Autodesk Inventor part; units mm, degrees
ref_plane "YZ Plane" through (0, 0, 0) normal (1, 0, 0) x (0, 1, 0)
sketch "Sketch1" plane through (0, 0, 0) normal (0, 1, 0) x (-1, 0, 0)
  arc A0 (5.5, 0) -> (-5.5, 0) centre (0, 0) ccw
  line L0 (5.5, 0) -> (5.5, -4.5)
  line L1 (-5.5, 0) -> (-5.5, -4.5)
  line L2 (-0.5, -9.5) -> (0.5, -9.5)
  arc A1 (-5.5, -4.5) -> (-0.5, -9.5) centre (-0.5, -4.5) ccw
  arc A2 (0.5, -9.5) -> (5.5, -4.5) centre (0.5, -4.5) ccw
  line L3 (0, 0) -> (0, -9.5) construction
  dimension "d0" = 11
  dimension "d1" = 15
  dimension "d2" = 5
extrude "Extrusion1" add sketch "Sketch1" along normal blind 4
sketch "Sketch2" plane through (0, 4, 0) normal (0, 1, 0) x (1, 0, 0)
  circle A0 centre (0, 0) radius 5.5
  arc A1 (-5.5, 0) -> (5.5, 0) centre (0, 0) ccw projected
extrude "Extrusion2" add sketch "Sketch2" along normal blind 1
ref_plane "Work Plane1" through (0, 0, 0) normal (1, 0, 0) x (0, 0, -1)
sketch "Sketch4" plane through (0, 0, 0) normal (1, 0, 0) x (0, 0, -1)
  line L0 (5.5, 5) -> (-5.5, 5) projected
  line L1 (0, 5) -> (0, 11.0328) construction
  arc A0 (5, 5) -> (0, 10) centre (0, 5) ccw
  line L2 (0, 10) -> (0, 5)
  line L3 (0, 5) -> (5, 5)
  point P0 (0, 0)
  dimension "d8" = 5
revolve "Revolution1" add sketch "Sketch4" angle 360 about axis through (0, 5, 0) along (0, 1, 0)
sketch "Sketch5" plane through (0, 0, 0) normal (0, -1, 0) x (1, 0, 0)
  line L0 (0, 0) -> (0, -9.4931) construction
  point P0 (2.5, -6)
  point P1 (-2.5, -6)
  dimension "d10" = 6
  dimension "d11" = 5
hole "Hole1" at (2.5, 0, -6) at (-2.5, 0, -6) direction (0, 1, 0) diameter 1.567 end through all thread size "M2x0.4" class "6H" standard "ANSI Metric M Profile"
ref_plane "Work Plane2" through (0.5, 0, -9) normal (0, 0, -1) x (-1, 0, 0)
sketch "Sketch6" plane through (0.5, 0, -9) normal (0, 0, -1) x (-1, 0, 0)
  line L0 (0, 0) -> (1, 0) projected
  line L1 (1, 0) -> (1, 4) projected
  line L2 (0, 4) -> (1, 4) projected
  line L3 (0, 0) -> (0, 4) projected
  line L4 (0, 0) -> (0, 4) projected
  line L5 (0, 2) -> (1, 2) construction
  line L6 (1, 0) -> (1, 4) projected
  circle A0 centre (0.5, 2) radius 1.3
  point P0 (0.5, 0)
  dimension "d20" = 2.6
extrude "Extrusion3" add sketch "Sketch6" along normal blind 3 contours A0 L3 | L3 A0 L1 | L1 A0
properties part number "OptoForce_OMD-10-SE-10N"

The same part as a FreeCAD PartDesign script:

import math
import FreeCAD as App
import Part
import Sketcher

doc = App.newDocument("Part")
params = doc.addObject("Spreadsheet::Sheet", "Params")
for row, (alias, value) in enumerate([
    ("sketch1_radius", "5 mm"),
    ("sketch1_radius2", "5.5 mm"),
    ("sketch1_height", "4.5 mm"),
    ("pad1_length", "4 mm"),
    ("sketch2_diameter", "11 mm"),
    ("pad2_length", "1 mm"),
    ("sketch3_radius", "5 mm"),
    ("revolution_angle", "360 deg"),
    ("hole_diameter", "1.567 mm"),
    ("sketch5_diameter", "2.6 mm"),
    ("pad3_length", "3 mm"),
], start=1):
    params.set(f"A{row}", alias)
    params.set(f"B{row}", "=" + value)
    params.setAlias(f"B{row}", alias)

body = doc.addObject("PartDesign::Body", "Body")

sketch1 = body.newObject("Sketcher::SketchObject", "Sketch")
sketch1.AttachmentSupport = (doc.getObject("XZ_Plane"), [""])
sketch1.MapMode = "FlatFace"
sketch1.addGeometry([
    Part.LineSegment(App.Vector(-5.5, -4.5, 0), App.Vector(-5.5, 0, 0)),
    Part.ArcOfCircle(Part.Circle(App.Vector(0, 0, 0), App.Vector(0, 0, 1), 5.5), math.radians(0), math.radians(180)),
    Part.LineSegment(App.Vector(5.5, 0, 0), App.Vector(5.5, -4.5, 0)),
    Part.ArcOfCircle(Part.Circle(App.Vector(0.5, -4.5, 0), App.Vector(0, 0, 1), 5), math.radians(-90), math.radians(0)),
    Part.LineSegment(App.Vector(0.5, -9.5, 0), App.Vector(-0.5, -9.5, 0)),
    Part.ArcOfCircle(Part.Circle(App.Vector(-0.5, -4.5, 0), App.Vector(0, 0, 1), 5), math.radians(180), math.radians(270)),
], False)
sketch1.addConstraint([
    Sketcher.Constraint("Tangent", 0, 2, 1, 2),
    Sketcher.Constraint("Tangent", 1, 1, 2, 1),
    Sketcher.Constraint("Tangent", 2, 2, 3, 2),
    Sketcher.Constraint("Tangent", 3, 1, 4, 1),
    Sketcher.Constraint("Tangent", 4, 2, 5, 2),
    Sketcher.Constraint("Tangent", 5, 1, 0, 1),
    Sketcher.Constraint("Vertical", 0),
    Sketcher.Constraint("Vertical", 2),
    Sketcher.Constraint("Horizontal", 4),
    Sketcher.Constraint("Coincident", 1, 3, -1, 1),
    Sketcher.Constraint("Equal", 3, 5),
    Sketcher.Constraint("Radius", 3, 5.0),
    Sketcher.Constraint("Radius", 1, 5.5),
    Sketcher.Constraint("DistanceY", 0, 1, 0, 2, 4.5),
])
sketch1.setExpression("Constraints[11]", "Params.sketch1_radius")
sketch1.setExpression("Constraints[12]", "Params.sketch1_radius2")
sketch1.setExpression("Constraints[13]", "Params.sketch1_height")
pad1 = body.newObject("PartDesign::Pad", "Pad")
pad1.Profile = sketch1
pad1.setExpression("Length", "Params.pad1_length")
pad1.Reversed = True

sketch2 = body.newObject("Sketcher::SketchObject", "Sketch001")
sketch2.AttachmentSupport = (doc.getObject("XZ_Plane"), [""])
sketch2.MapMode = "FlatFace"
sketch2.AttachmentOffset = App.Placement(App.Vector(0, 0, -4), App.Rotation())
sketch2.addGeometry(Part.Circle(App.Vector(0, 0, 0), App.Vector(0, 0, 1), 6), False)
sketch2.addConstraint([
    Sketcher.Constraint("Coincident", 0, 3, -1, 1),
    Sketcher.Constraint("Diameter", 0, 11.0),
])
sketch2.setExpression("Constraints[1]", "Params.sketch2_diameter")
pad2 = body.newObject("PartDesign::Pad", "Pad001")
pad2.Profile = sketch2
pad2.setExpression("Length", "Params.pad2_length")
pad2.Reversed = True

sketch3 = body.newObject("Sketcher::SketchObject", "Sketch002")
sketch3.AttachmentSupport = (doc.getObject("YZ_Plane"), [""])
sketch3.MapMode = "FlatFace"
sketch3.addGeometry([
    Part.LineSegment(App.Vector(5, 0, 0), App.Vector(5, -5, 0)),
    Part.ArcOfCircle(Part.Circle(App.Vector(5, 0, 0), App.Vector(0, 0, 1), 5), math.radians(-90), math.radians(0)),
    Part.LineSegment(App.Vector(10, 0, 0), App.Vector(5, 0, 0)),
], False)
sketch3.addConstraint([
    Sketcher.Constraint("Coincident", 0, 2, 1, 1),
    Sketcher.Constraint("Coincident", 1, 2, 2, 1),
    Sketcher.Constraint("Coincident", 2, 2, 0, 1),
    Sketcher.Constraint("Vertical", 0),
    Sketcher.Constraint("Horizontal", 2),
    Sketcher.Constraint("Coincident", 2, 2, 1, 3),
    Sketcher.Constraint("PointOnObject", 1, 3, -1),
    Sketcher.Constraint("Radius", 1, 5.0),
    Sketcher.Constraint("DistanceX", -1, 1, 1, 3, 5.0),
])
sketch3.setExpression("Constraints[7]", "Params.sketch3_radius")
revolution = body.newObject("PartDesign::Revolution", "Revolution")
revolution.Profile = sketch3
revolution.ReferenceAxis = (sketch3, ["H_Axis"])
revolution.setExpression("Angle", "Params.revolution_angle")

sketch4 = body.newObject("Sketcher::SketchObject", "Sketch003")
sketch4.AttachmentSupport = (doc.getObject("XZ_Plane"), [""])
sketch4.MapMode = "FlatFace"
sketch4.addGeometry([
    Part.Circle(App.Vector(2.5, -6, 0), App.Vector(0, 0, 1), 0.8),
    Part.Circle(App.Vector(-2.5, -6, 0), App.Vector(0, 0, 1), 0.8),
], False)
sketch4.addConstraint([
    Sketcher.Constraint("Equal", 0, 1),
    Sketcher.Constraint("Symmetric", 0, 3, 1, 3, -2),
    Sketcher.Constraint("Diameter", 0, 1.567),
    Sketcher.Constraint("DistanceY", 0, 3, -1, 1, 6.0),
    Sketcher.Constraint("DistanceX", 1, 3, 0, 3, 5.0),
])
doc.recompute()
hole = body.newObject("PartDesign::Hole", "Hole")
hole.Profile = sketch4
hole.ThreadType = "None"
hole.setExpression("Diameter", "Params.hole_diameter")
hole.DepthType = "ThroughAll"

sketch5 = body.newObject("Sketcher::SketchObject", "Sketch004")
sketch5.AttachmentSupport = (doc.getObject("XY_Plane"), [""])
sketch5.MapMode = "FlatFace"
sketch5.AttachmentOffset = App.Placement(App.Vector(0, 0, -9), App.Rotation())
sketch5.addGeometry(Part.Circle(App.Vector(0, 2, 0), App.Vector(0, 0, 1), 1.3), False)
sketch5.addConstraint([
    Sketcher.Constraint("PointOnObject", 0, 3, -2),
    Sketcher.Constraint("Diameter", 0, 2.6),
    Sketcher.Constraint("DistanceY", -1, 1, 0, 3, 2.0),
])
sketch5.setExpression("Constraints[1]", "Params.sketch5_diameter")
pad3 = body.newObject("PartDesign::Pad", "Pad002")
pad3.Profile = sketch5
pad3.setExpression("Length", "Params.pad3_length")
pad3.Reversed = True

doc.recompute()
